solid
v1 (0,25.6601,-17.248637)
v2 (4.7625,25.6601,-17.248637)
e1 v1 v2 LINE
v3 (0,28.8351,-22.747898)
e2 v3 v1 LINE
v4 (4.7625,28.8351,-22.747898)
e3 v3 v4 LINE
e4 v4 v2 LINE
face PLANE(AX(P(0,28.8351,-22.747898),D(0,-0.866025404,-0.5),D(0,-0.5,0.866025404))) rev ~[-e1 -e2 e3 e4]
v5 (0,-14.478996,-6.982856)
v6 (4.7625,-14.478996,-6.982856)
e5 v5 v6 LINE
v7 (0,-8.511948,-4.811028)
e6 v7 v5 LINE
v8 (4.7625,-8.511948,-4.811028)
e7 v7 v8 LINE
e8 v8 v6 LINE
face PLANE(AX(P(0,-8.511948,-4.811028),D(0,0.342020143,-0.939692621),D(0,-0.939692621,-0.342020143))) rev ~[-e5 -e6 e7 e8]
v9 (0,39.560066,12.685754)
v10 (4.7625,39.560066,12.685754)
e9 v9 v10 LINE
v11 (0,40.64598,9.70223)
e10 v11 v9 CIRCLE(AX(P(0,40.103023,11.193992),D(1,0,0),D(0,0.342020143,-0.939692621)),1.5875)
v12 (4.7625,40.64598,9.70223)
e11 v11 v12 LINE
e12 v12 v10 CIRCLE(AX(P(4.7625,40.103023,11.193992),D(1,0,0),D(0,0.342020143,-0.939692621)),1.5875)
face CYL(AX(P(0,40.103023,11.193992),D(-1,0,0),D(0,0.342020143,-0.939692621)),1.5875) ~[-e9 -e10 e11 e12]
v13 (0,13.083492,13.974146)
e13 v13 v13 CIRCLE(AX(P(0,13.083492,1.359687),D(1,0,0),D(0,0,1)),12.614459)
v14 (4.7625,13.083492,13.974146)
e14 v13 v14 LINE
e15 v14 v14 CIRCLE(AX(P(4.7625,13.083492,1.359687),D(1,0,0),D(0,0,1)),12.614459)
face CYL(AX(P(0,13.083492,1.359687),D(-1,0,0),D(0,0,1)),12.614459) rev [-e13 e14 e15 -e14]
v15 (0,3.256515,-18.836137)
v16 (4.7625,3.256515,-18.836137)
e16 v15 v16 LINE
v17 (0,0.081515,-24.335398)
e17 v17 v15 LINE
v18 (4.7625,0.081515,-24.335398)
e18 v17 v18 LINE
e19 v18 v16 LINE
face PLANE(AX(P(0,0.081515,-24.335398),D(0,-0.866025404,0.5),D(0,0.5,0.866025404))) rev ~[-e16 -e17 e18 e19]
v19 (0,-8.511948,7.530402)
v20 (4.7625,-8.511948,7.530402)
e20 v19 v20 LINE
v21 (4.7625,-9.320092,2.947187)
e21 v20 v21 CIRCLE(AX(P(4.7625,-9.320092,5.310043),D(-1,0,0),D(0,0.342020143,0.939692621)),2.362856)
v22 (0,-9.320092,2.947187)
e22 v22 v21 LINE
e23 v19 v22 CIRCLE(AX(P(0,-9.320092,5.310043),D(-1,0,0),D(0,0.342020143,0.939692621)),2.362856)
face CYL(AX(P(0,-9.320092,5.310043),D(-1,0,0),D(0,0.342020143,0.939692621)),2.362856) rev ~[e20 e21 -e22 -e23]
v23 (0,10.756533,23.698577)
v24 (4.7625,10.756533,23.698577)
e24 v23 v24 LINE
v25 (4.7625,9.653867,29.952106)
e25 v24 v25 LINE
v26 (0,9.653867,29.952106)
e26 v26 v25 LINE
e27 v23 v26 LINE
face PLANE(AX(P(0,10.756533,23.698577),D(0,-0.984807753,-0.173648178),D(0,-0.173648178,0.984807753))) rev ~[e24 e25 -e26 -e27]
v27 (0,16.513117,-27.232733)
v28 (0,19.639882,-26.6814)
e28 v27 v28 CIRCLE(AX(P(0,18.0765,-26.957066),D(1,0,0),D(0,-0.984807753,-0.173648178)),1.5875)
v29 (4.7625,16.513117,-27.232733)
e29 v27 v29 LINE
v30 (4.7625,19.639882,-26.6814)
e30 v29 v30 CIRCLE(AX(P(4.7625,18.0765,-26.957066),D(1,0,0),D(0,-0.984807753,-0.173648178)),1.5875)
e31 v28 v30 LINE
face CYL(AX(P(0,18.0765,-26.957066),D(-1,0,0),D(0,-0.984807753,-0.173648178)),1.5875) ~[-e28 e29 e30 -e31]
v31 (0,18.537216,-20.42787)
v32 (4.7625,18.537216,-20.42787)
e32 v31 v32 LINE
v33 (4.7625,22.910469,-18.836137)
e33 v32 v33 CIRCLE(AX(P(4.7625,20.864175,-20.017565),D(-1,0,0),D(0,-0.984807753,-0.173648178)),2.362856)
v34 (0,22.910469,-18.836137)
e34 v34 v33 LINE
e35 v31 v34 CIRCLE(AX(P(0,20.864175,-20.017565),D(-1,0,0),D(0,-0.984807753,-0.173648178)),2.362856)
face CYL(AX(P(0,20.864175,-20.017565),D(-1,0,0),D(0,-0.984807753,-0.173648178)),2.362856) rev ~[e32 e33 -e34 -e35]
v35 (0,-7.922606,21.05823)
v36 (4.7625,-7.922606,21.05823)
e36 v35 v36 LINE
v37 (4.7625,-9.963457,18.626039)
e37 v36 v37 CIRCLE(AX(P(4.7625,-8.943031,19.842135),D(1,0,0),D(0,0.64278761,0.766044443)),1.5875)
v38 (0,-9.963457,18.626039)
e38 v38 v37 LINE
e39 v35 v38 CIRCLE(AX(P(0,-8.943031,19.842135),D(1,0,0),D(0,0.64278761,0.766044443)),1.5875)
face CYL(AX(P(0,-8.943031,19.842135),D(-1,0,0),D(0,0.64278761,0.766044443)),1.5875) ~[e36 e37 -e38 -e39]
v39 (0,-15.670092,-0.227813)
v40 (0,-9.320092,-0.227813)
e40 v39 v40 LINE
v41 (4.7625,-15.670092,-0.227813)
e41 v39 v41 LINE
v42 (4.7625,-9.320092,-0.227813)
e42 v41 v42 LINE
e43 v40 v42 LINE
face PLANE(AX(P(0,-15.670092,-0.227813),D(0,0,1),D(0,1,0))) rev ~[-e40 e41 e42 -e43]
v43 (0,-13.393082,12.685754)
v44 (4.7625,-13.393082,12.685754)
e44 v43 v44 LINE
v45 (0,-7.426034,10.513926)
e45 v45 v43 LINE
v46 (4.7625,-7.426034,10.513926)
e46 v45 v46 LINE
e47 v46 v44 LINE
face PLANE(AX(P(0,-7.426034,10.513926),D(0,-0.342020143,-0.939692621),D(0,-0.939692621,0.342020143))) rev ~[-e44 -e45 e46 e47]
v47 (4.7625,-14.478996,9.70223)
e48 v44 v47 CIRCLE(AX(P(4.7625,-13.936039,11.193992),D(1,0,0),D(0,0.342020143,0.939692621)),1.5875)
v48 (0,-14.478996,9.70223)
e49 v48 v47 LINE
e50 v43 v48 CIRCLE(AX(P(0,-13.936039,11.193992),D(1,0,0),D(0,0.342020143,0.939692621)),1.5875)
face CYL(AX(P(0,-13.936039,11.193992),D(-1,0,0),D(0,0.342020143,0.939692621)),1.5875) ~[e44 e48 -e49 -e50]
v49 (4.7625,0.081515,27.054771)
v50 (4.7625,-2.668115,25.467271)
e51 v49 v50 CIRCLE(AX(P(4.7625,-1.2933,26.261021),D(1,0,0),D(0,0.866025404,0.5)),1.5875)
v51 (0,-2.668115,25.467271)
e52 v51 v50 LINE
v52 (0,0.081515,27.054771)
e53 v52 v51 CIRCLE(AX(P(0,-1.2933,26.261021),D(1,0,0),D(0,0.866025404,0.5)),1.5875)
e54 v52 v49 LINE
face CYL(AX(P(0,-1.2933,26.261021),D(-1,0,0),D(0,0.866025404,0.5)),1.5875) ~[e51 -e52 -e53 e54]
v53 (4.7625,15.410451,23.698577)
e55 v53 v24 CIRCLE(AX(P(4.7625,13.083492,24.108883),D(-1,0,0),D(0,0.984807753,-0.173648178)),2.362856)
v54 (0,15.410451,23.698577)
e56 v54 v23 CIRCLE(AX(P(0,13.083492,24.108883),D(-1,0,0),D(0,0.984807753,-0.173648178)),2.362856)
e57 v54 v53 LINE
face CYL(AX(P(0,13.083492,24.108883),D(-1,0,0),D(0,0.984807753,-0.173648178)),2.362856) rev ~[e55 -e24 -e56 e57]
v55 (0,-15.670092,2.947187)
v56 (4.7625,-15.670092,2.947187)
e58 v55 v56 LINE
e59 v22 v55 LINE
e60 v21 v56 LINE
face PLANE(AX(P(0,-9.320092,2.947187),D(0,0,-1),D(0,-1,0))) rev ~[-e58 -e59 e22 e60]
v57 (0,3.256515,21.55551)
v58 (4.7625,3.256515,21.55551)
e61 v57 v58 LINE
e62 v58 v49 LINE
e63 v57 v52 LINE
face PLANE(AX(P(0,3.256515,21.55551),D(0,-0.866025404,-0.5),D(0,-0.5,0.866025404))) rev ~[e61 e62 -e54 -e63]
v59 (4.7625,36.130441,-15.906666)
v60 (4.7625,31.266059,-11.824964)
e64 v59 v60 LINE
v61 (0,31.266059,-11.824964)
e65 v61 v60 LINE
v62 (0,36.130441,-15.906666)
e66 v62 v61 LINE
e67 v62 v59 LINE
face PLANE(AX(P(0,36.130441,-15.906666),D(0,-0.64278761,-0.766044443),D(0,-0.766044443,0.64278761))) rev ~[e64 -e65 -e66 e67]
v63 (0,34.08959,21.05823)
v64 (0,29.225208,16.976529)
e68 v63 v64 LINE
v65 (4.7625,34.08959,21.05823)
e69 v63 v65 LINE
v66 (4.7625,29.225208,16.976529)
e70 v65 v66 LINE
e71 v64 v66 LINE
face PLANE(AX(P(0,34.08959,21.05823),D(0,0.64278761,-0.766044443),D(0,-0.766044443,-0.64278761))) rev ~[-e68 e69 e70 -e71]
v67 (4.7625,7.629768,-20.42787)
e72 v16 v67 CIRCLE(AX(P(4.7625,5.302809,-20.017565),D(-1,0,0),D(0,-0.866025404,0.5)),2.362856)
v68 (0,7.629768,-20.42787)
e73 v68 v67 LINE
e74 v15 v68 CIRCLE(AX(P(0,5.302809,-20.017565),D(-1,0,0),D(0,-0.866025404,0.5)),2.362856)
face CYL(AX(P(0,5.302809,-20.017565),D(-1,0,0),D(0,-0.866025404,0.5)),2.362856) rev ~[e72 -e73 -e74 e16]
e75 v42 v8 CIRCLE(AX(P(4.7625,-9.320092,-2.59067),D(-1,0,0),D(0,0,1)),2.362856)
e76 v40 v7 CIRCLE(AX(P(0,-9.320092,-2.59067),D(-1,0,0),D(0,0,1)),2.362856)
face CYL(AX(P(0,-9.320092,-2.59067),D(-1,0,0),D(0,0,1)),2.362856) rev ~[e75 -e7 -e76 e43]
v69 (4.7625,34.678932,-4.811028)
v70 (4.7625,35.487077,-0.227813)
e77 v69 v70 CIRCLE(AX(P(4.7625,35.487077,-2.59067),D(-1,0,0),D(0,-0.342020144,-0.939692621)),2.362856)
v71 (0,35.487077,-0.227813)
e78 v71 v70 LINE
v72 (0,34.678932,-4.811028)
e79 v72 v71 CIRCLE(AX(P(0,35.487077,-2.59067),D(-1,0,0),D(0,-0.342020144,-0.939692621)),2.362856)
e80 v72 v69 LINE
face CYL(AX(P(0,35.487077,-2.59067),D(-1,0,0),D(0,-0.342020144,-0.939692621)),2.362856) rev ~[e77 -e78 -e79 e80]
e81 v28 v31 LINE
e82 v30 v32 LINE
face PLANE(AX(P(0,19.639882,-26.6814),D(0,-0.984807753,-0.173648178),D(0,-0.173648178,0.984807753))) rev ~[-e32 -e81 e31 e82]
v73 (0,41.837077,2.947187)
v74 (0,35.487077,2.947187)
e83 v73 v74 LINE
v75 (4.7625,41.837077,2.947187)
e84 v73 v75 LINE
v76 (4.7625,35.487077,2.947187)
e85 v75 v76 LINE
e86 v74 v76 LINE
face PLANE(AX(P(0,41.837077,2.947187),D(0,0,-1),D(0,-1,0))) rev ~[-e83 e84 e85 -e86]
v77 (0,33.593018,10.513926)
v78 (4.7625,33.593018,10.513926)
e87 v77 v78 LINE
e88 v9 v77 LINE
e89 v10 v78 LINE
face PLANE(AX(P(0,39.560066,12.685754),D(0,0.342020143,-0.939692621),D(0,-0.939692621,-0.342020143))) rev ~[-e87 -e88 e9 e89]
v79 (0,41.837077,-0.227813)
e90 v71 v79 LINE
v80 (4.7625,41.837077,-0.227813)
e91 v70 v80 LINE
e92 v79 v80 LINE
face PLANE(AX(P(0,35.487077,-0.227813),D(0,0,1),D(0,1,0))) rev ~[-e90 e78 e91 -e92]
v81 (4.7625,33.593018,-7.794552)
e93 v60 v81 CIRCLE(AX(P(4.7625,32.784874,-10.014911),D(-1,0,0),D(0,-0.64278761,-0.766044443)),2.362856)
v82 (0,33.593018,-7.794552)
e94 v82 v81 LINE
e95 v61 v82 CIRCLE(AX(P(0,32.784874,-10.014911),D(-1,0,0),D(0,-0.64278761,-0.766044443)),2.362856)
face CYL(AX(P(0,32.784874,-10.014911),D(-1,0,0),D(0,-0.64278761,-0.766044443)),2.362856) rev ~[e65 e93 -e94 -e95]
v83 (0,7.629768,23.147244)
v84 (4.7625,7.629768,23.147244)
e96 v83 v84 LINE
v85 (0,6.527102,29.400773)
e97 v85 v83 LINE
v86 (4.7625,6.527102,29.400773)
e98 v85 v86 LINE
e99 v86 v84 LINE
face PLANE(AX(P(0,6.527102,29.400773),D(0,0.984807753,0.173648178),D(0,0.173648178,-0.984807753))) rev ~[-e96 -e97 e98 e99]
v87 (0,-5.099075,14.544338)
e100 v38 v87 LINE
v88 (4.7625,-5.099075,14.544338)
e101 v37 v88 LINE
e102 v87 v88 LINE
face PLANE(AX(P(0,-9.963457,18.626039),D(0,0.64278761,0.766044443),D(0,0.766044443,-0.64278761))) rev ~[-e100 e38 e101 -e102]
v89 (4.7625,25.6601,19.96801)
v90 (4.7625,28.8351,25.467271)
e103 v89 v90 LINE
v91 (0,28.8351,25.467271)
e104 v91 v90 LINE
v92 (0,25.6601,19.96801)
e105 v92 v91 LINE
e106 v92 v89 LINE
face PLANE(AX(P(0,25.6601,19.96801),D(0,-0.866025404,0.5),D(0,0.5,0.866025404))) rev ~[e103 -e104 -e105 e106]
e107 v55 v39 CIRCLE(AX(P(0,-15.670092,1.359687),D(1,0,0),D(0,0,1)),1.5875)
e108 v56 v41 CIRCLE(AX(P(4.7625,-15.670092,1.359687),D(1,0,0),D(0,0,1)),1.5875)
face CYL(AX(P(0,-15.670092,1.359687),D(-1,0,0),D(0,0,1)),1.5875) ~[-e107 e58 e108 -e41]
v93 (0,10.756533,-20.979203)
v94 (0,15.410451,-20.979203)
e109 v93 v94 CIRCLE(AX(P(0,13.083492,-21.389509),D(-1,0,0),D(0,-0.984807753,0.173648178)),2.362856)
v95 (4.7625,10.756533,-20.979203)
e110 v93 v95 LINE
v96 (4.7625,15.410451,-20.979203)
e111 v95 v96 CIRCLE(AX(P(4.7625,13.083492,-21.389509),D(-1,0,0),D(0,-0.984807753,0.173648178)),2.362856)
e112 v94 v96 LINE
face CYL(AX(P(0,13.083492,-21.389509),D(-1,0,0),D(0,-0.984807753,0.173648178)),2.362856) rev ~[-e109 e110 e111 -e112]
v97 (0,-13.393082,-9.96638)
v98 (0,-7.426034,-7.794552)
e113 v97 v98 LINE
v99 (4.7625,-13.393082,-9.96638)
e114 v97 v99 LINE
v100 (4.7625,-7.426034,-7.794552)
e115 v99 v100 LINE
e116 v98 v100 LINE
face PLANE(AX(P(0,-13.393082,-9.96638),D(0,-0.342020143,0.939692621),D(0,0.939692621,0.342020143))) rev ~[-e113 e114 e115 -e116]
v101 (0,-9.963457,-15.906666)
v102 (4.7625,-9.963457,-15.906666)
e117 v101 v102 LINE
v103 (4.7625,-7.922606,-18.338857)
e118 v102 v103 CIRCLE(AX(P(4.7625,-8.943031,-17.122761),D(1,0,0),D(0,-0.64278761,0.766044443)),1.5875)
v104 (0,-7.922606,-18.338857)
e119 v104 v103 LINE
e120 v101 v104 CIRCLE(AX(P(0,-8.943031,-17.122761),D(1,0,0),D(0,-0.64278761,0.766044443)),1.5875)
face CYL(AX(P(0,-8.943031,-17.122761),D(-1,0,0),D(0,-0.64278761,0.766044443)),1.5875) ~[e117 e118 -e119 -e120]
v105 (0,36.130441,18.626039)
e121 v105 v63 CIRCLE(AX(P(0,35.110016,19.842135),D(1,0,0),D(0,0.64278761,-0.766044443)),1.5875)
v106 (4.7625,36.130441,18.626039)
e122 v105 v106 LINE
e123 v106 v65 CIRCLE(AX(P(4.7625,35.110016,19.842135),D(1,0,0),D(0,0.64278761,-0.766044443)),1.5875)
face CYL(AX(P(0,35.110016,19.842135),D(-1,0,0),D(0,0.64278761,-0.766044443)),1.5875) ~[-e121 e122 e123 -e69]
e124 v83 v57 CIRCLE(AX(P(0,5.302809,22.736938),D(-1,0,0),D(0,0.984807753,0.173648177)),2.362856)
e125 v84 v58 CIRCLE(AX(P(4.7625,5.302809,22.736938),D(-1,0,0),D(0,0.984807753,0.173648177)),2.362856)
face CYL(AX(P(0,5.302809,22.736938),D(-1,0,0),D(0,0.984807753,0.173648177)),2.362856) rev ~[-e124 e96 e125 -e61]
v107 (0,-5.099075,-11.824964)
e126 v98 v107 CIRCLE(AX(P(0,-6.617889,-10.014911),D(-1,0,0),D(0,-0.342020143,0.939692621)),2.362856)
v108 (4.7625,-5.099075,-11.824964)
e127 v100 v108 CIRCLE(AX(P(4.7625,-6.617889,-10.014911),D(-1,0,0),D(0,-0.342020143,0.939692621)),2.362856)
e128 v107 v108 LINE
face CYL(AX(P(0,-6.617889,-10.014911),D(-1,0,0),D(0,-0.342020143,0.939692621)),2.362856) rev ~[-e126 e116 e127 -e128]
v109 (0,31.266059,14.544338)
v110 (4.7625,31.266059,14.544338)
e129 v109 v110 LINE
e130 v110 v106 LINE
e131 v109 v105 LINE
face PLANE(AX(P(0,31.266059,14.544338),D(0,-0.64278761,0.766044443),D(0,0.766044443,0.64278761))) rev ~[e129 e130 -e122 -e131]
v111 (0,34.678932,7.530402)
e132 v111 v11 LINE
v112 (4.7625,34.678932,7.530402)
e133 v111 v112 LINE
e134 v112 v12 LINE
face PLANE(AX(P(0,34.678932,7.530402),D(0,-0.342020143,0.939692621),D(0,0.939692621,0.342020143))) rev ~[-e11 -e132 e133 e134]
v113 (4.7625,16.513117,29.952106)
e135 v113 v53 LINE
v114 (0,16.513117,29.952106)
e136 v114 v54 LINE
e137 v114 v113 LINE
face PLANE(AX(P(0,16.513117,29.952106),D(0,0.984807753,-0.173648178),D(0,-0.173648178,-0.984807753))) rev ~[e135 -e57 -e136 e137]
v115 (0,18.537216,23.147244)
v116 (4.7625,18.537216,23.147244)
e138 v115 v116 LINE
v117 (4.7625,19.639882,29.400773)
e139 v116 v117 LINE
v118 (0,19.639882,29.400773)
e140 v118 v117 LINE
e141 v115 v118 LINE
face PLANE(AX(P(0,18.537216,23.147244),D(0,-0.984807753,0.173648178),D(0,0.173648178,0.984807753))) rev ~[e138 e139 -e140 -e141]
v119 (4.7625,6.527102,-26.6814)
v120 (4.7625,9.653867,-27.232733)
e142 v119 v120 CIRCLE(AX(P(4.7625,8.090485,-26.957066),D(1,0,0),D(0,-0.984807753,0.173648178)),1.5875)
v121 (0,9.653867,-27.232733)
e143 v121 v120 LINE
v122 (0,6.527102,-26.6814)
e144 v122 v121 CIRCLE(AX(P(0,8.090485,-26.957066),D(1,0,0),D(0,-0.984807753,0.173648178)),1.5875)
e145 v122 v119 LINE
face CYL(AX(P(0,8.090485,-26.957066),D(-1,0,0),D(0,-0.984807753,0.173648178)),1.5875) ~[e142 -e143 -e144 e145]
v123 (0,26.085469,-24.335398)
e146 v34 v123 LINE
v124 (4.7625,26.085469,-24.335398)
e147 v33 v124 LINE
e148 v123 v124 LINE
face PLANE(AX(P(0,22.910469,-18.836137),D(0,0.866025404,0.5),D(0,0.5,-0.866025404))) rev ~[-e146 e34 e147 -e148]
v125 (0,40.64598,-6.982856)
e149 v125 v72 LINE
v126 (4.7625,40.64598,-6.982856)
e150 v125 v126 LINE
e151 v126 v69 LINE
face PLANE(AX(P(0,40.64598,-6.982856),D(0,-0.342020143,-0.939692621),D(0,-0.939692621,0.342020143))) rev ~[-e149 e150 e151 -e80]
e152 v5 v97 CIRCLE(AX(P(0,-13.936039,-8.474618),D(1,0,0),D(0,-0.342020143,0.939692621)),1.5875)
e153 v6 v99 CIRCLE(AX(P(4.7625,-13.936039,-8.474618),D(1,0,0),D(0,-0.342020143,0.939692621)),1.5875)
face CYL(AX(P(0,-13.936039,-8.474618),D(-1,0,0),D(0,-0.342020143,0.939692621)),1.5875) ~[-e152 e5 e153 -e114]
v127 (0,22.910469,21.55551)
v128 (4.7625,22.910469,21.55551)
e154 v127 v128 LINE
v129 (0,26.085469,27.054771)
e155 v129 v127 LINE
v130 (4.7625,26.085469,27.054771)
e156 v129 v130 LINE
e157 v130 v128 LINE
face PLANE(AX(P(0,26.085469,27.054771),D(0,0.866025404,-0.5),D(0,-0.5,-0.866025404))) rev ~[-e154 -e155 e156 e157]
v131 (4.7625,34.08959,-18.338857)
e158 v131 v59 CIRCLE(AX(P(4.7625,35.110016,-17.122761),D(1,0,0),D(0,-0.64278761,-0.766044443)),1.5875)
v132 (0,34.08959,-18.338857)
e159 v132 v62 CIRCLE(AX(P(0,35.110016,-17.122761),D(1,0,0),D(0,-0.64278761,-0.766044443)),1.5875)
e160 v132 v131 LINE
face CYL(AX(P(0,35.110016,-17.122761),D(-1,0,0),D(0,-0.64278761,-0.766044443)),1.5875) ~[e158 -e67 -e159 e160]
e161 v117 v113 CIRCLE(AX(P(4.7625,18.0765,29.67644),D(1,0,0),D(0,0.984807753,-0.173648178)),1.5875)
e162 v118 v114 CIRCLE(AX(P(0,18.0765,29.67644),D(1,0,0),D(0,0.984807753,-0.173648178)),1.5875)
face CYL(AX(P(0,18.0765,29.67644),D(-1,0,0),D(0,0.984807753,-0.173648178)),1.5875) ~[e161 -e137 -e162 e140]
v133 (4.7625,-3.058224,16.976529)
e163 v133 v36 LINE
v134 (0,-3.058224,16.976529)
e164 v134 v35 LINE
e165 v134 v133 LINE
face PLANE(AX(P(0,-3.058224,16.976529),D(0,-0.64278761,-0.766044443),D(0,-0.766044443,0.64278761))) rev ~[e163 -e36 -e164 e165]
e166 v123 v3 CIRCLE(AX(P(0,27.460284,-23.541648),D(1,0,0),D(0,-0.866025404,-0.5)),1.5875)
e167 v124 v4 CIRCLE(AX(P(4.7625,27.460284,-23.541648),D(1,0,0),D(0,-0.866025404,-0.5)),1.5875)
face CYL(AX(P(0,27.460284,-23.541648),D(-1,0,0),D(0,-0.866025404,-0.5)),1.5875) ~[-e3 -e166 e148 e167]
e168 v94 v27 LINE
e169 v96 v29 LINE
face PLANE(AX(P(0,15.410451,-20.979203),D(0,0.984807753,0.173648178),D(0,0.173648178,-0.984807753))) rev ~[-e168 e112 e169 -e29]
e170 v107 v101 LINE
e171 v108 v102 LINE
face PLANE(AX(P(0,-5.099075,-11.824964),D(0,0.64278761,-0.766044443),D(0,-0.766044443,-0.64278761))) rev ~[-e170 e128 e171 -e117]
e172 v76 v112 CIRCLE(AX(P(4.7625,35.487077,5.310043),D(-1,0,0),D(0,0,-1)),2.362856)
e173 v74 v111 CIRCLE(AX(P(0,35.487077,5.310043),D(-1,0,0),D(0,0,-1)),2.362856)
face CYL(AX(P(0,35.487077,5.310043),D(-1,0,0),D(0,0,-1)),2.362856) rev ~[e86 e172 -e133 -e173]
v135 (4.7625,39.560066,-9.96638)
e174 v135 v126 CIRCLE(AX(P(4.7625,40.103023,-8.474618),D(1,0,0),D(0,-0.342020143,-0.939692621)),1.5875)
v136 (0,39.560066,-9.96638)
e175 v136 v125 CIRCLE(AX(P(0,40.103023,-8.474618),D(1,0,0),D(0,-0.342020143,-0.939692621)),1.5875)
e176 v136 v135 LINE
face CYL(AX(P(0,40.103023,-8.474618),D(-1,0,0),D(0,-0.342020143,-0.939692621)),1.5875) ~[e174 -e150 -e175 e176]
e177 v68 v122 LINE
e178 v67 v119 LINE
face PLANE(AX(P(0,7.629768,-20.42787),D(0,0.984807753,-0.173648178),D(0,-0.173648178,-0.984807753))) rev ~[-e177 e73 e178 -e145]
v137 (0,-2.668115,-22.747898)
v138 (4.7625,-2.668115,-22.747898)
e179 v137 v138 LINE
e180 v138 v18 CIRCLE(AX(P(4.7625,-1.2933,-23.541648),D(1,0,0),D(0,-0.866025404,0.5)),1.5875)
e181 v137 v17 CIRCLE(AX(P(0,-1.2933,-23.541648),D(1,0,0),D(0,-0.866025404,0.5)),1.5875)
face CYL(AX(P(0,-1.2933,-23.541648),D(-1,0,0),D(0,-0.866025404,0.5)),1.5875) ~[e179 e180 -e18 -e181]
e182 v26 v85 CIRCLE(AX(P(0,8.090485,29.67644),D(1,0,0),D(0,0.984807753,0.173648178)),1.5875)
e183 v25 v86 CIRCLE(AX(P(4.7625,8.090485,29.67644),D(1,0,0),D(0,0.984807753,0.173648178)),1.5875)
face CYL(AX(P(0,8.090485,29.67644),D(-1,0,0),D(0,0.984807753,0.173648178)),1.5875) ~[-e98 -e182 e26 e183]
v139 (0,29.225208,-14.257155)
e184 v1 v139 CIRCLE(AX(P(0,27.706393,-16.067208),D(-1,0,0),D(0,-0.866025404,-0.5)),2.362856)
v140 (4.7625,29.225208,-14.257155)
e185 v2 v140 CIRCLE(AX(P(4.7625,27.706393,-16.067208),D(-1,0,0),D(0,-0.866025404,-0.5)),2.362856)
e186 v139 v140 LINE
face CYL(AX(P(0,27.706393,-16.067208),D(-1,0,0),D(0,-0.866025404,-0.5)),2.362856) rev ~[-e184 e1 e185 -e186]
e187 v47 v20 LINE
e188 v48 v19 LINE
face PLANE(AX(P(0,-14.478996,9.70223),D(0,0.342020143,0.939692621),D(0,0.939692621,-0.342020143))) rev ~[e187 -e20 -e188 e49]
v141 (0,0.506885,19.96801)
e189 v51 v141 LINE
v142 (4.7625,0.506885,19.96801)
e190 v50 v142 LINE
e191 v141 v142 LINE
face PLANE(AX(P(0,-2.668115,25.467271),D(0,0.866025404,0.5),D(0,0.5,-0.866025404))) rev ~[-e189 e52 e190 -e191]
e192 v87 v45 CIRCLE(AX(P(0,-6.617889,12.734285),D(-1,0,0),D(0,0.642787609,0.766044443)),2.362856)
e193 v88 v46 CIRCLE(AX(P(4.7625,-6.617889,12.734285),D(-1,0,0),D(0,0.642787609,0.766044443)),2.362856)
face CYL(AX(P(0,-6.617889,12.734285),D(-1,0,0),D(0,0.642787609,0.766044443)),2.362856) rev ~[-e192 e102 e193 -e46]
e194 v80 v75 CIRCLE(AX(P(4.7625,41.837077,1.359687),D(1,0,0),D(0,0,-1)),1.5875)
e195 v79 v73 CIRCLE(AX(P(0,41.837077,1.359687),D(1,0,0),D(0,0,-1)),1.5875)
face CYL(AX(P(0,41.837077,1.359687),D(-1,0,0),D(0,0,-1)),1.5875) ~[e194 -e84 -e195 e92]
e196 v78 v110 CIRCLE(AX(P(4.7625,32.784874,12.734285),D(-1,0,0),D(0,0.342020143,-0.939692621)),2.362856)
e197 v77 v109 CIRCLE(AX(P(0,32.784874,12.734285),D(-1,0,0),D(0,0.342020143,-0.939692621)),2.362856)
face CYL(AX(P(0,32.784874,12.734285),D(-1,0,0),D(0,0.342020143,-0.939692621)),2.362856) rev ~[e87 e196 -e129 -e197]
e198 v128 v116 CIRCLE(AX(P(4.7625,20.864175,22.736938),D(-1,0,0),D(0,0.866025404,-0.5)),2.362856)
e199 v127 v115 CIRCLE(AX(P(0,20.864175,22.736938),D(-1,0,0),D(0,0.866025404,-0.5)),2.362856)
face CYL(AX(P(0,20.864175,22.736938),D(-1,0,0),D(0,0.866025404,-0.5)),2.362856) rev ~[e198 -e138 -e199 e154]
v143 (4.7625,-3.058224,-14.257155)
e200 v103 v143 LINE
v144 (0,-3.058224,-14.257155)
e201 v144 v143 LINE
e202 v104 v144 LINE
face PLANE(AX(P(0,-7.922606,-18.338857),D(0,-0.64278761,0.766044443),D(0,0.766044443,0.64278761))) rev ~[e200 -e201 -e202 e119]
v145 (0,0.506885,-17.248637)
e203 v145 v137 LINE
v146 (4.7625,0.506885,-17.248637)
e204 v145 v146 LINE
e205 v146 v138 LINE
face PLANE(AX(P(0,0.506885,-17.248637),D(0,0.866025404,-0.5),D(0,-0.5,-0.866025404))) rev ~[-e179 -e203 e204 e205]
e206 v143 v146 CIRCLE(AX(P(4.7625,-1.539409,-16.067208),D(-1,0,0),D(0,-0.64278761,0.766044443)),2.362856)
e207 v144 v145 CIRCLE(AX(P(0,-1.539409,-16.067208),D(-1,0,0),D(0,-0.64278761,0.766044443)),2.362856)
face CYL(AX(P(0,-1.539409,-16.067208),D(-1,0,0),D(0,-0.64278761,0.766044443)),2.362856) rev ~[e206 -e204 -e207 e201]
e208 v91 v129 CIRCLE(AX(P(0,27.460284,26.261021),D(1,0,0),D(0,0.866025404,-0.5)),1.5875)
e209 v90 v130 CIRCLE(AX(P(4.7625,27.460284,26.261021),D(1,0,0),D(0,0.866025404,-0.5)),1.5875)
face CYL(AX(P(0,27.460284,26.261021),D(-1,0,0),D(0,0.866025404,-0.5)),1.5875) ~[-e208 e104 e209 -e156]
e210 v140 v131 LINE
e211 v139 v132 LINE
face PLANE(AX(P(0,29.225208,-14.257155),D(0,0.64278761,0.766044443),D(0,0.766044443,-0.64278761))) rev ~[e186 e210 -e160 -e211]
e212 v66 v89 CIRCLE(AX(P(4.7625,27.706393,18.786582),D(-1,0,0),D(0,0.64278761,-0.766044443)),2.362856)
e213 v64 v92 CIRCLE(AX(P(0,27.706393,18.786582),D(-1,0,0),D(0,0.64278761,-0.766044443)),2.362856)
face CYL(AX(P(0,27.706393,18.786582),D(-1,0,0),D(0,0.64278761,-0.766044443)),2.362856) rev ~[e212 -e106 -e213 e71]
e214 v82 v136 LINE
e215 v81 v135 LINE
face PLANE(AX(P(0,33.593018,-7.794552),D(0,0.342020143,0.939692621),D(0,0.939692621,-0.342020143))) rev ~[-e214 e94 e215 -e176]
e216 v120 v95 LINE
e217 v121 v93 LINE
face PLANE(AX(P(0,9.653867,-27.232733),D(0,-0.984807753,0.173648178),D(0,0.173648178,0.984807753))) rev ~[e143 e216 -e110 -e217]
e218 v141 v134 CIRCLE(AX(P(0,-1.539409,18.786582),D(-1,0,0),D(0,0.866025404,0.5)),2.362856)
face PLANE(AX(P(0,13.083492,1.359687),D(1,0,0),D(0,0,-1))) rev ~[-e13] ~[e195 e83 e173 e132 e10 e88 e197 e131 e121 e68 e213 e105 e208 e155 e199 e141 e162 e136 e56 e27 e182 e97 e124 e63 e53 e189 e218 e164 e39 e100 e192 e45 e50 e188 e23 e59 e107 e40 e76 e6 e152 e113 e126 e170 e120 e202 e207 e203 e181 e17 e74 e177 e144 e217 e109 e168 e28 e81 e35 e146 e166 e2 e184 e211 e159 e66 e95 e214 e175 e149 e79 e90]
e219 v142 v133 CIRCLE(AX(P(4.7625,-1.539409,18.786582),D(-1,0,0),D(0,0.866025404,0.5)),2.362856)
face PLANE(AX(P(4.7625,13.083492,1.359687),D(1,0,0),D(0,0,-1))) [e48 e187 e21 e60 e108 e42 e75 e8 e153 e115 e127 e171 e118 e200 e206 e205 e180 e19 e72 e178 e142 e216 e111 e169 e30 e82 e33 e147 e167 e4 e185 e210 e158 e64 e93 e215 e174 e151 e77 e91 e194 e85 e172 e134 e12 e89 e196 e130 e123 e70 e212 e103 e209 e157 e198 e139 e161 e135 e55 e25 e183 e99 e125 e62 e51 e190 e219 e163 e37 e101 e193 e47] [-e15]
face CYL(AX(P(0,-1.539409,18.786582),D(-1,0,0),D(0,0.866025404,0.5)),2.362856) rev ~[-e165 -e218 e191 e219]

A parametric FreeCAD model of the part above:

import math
import FreeCAD as App
import Part
import Sketcher
Q = App.Units.Quantity

doc = App.newDocument("Part")
body = doc.addObject("PartDesign::Body", "Body")

# Sketch on YZ plane
sketch1 = doc.addObject("Sketcher::SketchObject", "Sketch")
body.addObject(sketch1)
sketch1.AttachmentSupport = (doc.YZ_Plane, [""])
sketch1.MapMode = "FlatFace"
sketch1.addGeometry(Part.LineSegment(App.Vector(40.6, -7, 0), App.Vector(34.7, -4.8, 0)), False)
sketch1.addGeometry(Part.ArcOfCircle(Part.Circle(App.Vector(35.5, -2.6, 0), App.Vector(0, 0, 1), 2.4), math.radians(90), math.radians(250)), False)
sketch1.addGeometry(Part.LineSegment(App.Vector(35.5, -0.2, 0), App.Vector(41.8, -0.2, 0)), False)
sketch1.addGeometry(Part.ArcOfCircle(Part.Circle(App.Vector(41.8, 1.4, 0), App.Vector(0, 0, 1), 1.6), math.radians(-90), math.radians(90)), False)
sketch1.addGeometry(Part.LineSegment(App.Vector(41.8, 2.9, 0), App.Vector(35.5, 2.9, 0)), False)
sketch1.addGeometry(Part.ArcOfCircle(Part.Circle(App.Vector(35.5, 5.3, 0), App.Vector(0, 0, 1), 2.4), math.radians(110), math.radians(270)), False)
sketch1.addGeometry(Part.LineSegment(App.Vector(34.7, 7.5, 0), App.Vector(40.6, 9.7, 0)), False)
sketch1.addGeometry(Part.ArcOfCircle(Part.Circle(App.Vector(40.1, 11.2, 0), App.Vector(0, 0, 1), 1.6), math.radians(-70), math.radians(110)), False)
sketch1.addGeometry(Part.LineSegment(App.Vector(39.6, 12.7, 0), App.Vector(33.6, 10.5, 0)), False)
sketch1.addGeometry(Part.ArcOfCircle(Part.Circle(App.Vector(32.8, 12.7, 0), App.Vector(0, 0, 1), 2.4), math.radians(130), math.radians(290)), False)
sketch1.addGeometry(Part.LineSegment(App.Vector(31.3, 14.5, 0), App.Vector(36.1, 18.6, 0)), False)
sketch1.addGeometry(Part.ArcOfCircle(Part.Circle(App.Vector(35.1, 19.8, 0), App.Vector(0, 0, 1), 1.6), math.radians(-50), math.radians(130)), False)
sketch1.addGeometry(Part.LineSegment(App.Vector(34.1, 21.1, 0), App.Vector(29.2, 17, 0)), False)
sketch1.addGeometry(Part.ArcOfCircle(Part.Circle(App.Vector(27.7, 18.8, 0), App.Vector(0, 0, 1), 2.4), math.radians(150), math.radians(310)), False)
sketch1.addGeometry(Part.LineSegment(App.Vector(25.7, 20, 0), App.Vector(28.8, 25.5, 0)), False)
sketch1.addGeometry(Part.ArcOfCircle(Part.Circle(App.Vector(27.5, 26.3, 0), App.Vector(0, 0, 1), 1.6), math.radians(-30), math.radians(150)), False)
sketch1.addGeometry(Part.LineSegment(App.Vector(26.1, 27.1, 0), App.Vector(22.9, 21.6, 0)), False)
sketch1.addGeometry(Part.ArcOfCircle(Part.Circle(App.Vector(20.9, 22.7, 0), App.Vector(0, 0, 1), 2.4), math.radians(170), math.radians(330)), False)
sketch1.addGeometry(Part.LineSegment(App.Vector(18.5, 23.1, 0), App.Vector(19.6, 29.4, 0)), False)
sketch1.addGeometry(Part.ArcOfCircle(Part.Circle(App.Vector(18.1, 29.7, 0), App.Vector(0, 0, 1), 1.6), math.radians(-10), math.radians(170)), False)
sketch1.addGeometry(Part.LineSegment(App.Vector(16.5, 30, 0), App.Vector(15.4, 23.7, 0)), False)
sketch1.addGeometry(Part.ArcOfCircle(Part.Circle(App.Vector(13.1, 24.1, 0), App.Vector(0, 0, 1), 2.4), math.radians(-170), math.radians(-10)), False)
sketch1.addGeometry(Part.LineSegment(App.Vector(10.8, 23.7, 0), App.Vector(9.7, 30, 0)), False)
sketch1.addGeometry(Part.ArcOfCircle(Part.Circle(App.Vector(8.1, 29.7, 0), App.Vector(0, 0, 1), 1.6), math.radians(10), math.radians(190)), False)
sketch1.addGeometry(Part.LineSegment(App.Vector(6.5, 29.4, 0), App.Vector(7.6, 23.1, 0)), False)
sketch1.addGeometry(Part.ArcOfCircle(Part.Circle(App.Vector(5.3, 22.7, 0), App.Vector(0, 0, 1), 2.4), math.radians(-150), math.radians(10)), False)
sketch1.addGeometry(Part.LineSegment(App.Vector(3.3, 21.6, 0), App.Vector(0.1, 27.1, 0)), False)
sketch1.addGeometry(Part.ArcOfCircle(Part.Circle(App.Vector(-1.3, 26.3, 0), App.Vector(0, 0, 1), 1.6), math.radians(30), math.radians(210)), False)
sketch1.addGeometry(Part.LineSegment(App.Vector(-2.7, 25.5, 0), App.Vector(0.5, 20, 0)), False)
sketch1.addGeometry(Part.ArcOfCircle(Part.Circle(App.Vector(-1.5, 18.8, 0), App.Vector(0, 0, 1), 2.4), math.radians(-130), math.radians(30)), False)
sketch1.addGeometry(Part.LineSegment(App.Vector(-3.1, 17, 0), App.Vector(-7.9, 21.1, 0)), False)
sketch1.addGeometry(Part.ArcOfCircle(Part.Circle(App.Vector(-8.9, 19.8, 0), App.Vector(0, 0, 1), 1.6), math.radians(50), math.radians(230)), False)
sketch1.addGeometry(Part.LineSegment(App.Vector(-10, 18.6, 0), App.Vector(-5.1, 14.5, 0)), False)
sketch1.addGeometry(Part.ArcOfCircle(Part.Circle(App.Vector(-6.6, 12.7, 0), App.Vector(0, 0, 1), 2.4), math.radians(-110), math.radians(50)), False)
sketch1.addGeometry(Part.LineSegment(App.Vector(-7.4, 10.5, 0), App.Vector(-13.4, 12.7, 0)), False)
sketch1.addGeometry(Part.ArcOfCircle(Part.Circle(App.Vector(-13.9, 11.2, 0), App.Vector(0, 0, 1), 1.6), math.radians(70), math.radians(250)), False)
sketch1.addGeometry(Part.LineSegment(App.Vector(-14.5, 9.7, 0), App.Vector(-8.5, 7.5, 0)), False)
sketch1.addGeometry(Part.ArcOfCircle(Part.Circle(App.Vector(-9.3, 5.3, 0), App.Vector(0, 0, 1), 2.4), math.radians(-90), math.radians(70)), False)
sketch1.addGeometry(Part.LineSegment(App.Vector(-9.3, 2.9, 0), App.Vector(-15.7, 2.9, 0)), False)
sketch1.addGeometry(Part.ArcOfCircle(Part.Circle(App.Vector(-15.7, 1.4, 0), App.Vector(0, 0, 1), 1.6), math.radians(90), math.radians(270)), False)
sketch1.addGeometry(Part.LineSegment(App.Vector(-15.7, -0.2, 0), App.Vector(-9.3, -0.2, 0)), False)
sketch1.addGeometry(Part.ArcOfCircle(Part.Circle(App.Vector(-9.3, -2.6, 0), App.Vector(0, 0, 1), 2.4), math.radians(-70), math.radians(90)), False)
sketch1.addGeometry(Part.LineSegment(App.Vector(-8.5, -4.8, 0), App.Vector(-14.5, -7, 0)), False)
sketch1.addGeometry(Part.ArcOfCircle(Part.Circle(App.Vector(-13.9, -8.5, 0), App.Vector(0, 0, 1), 1.6), math.radians(110), math.radians(290)), False)
sketch1.addGeometry(Part.LineSegment(App.Vector(-13.4, -10, 0), App.Vector(-7.4, -7.8, 0)), False)
sketch1.addGeometry(Part.ArcOfCircle(Part.Circle(App.Vector(-6.6, -10, 0), App.Vector(0, 0, 1), 2.4), math.radians(-50), math.radians(110)), False)
sketch1.addGeometry(Part.LineSegment(App.Vector(-5.1, -11.8, 0), App.Vector(-10, -15.9, 0)), False)
sketch1.addGeometry(Part.ArcOfCircle(Part.Circle(App.Vector(-8.9, -17.1, 0), App.Vector(0, 0, 1), 1.6), math.radians(130), math.radians(310)), False)
sketch1.addGeometry(Part.LineSegment(App.Vector(-7.9, -18.3, 0), App.Vector(-3.1, -14.3, 0)), False)
sketch1.addGeometry(Part.ArcOfCircle(Part.Circle(App.Vector(-1.5, -16.1, 0), App.Vector(0, 0, 1), 2.4), math.radians(-30), math.radians(130)), False)
sketch1.addGeometry(Part.LineSegment(App.Vector(0.5, -17.2, 0), App.Vector(-2.7, -22.7, 0)), False)
sketch1.addGeometry(Part.ArcOfCircle(Part.Circle(App.Vector(-1.3, -23.5, 0), App.Vector(0, 0, 1), 1.6), math.radians(150), math.radians(330)), False)
sketch1.addGeometry(Part.LineSegment(App.Vector(0.1, -24.3, 0), App.Vector(3.3, -18.8, 0)), False)
sketch1.addGeometry(Part.ArcOfCircle(Part.Circle(App.Vector(5.3, -20, 0), App.Vector(0, 0, 1), 2.4), math.radians(-10), math.radians(150)), False)
sketch1.addGeometry(Part.LineSegment(App.Vector(7.6, -20.4, 0), App.Vector(6.5, -26.7, 0)), False)
sketch1.addGeometry(Part.ArcOfCircle(Part.Circle(App.Vector(8.1, -27, 0), App.Vector(0, 0, 1), 1.6), math.radians(170), math.radians(350)), False)
sketch1.addGeometry(Part.LineSegment(App.Vector(9.7, -27.2, 0), App.Vector(10.8, -21, 0)), False)
sketch1.addGeometry(Part.ArcOfCircle(Part.Circle(App.Vector(13.1, -21.4, 0), App.Vector(0, 0, 1), 2.4), math.radians(10), math.radians(170)), False)
sketch1.addGeometry(Part.LineSegment(App.Vector(15.4, -21, 0), App.Vector(16.5, -27.2, 0)), False)
sketch1.addGeometry(Part.ArcOfCircle(Part.Circle(App.Vector(18.1, -27, 0), App.Vector(0, 0, 1), 1.6), math.radians(-170), math.radians(10)), False)
sketch1.addGeometry(Part.LineSegment(App.Vector(19.6, -26.7, 0), App.Vector(18.5, -20.4, 0)), False)
sketch1.addGeometry(Part.ArcOfCircle(Part.Circle(App.Vector(20.9, -20, 0), App.Vector(0, 0, 1), 2.4), math.radians(30), math.radians(190)), False)
sketch1.addGeometry(Part.LineSegment(App.Vector(22.9, -18.8, 0), App.Vector(26.1, -24.3, 0)), False)
sketch1.addGeometry(Part.ArcOfCircle(Part.Circle(App.Vector(27.5, -23.5, 0), App.Vector(0, 0, 1), 1.6), math.radians(-150), math.radians(30)), False)
sketch1.addGeometry(Part.LineSegment(App.Vector(28.8, -22.7, 0), App.Vector(25.7, -17.2, 0)), False)
sketch1.addGeometry(Part.ArcOfCircle(Part.Circle(App.Vector(27.7, -16.1, 0), App.Vector(0, 0, 1), 2.4), math.radians(50), math.radians(210)), False)
sketch1.addGeometry(Part.LineSegment(App.Vector(29.2, -14.3, 0), App.Vector(34.1, -18.3, 0)), False)
sketch1.addGeometry(Part.ArcOfCircle(Part.Circle(App.Vector(35.1, -17.1, 0), App.Vector(0, 0, 1), 1.6), math.radians(-130), math.radians(50)), False)
sketch1.addGeometry(Part.LineSegment(App.Vector(36.1, -15.9, 0), App.Vector(31.3, -11.8, 0)), False)
sketch1.addGeometry(Part.ArcOfCircle(Part.Circle(App.Vector(32.8, -10, 0), App.Vector(0, 0, 1), 2.4), math.radians(70), math.radians(230)), False)
sketch1.addGeometry(Part.LineSegment(App.Vector(33.6, -7.8, 0), App.Vector(39.6, -10, 0)), False)
sketch1.addGeometry(Part.ArcOfCircle(Part.Circle(App.Vector(40.1, -8.5, 0), App.Vector(0, 0, 1), 1.6), math.radians(-110), math.radians(70)), False)
sketch1.addGeometry(Part.Circle(App.Vector(13.1, 1.4, 0), App.Vector(0, 0, 1), 12.6), False)
sketch1.addConstraint(Sketcher.Constraint("Tangent", 0, 2, 1, 2))
sketch1.addConstraint(Sketcher.Constraint("Tangent", 1, 1, 2, 1))
sketch1.addConstraint(Sketcher.Constraint("Tangent", 2, 2, 3, 1))
sketch1.addConstraint(Sketcher.Constraint("Tangent", 3, 2, 4, 1))
sketch1.addConstraint(Sketcher.Constraint("Tangent", 4, 2, 5, 2))
sketch1.addConstraint(Sketcher.Constraint("Tangent", 5, 1, 6, 1))
sketch1.addConstraint(Sketcher.Constraint("Tangent", 6, 2, 7, 1))
sketch1.addConstraint(Sketcher.Constraint("Tangent", 7, 2, 8, 1))
sketch1.addConstraint(Sketcher.Constraint("Tangent", 8, 2, 9, 2))
sketch1.addConstraint(Sketcher.Constraint("Tangent", 9, 1, 10, 1))
sketch1.addConstraint(Sketcher.Constraint("Tangent", 10, 2, 11, 1))
sketch1.addConstraint(Sketcher.Constraint("Tangent", 11, 2, 12, 1))
sketch1.addConstraint(Sketcher.Constraint("Tangent", 12, 2, 13, 2))
sketch1.addConstraint(Sketcher.Constraint("Tangent", 13, 1, 14, 1))
sketch1.addConstraint(Sketcher.Constraint("Tangent", 14, 2, 15, 1))
sketch1.addConstraint(Sketcher.Constraint("Tangent", 15, 2, 16, 1))
sketch1.addConstraint(Sketcher.Constraint("Tangent", 16, 2, 17, 2))
sketch1.addConstraint(Sketcher.Constraint("Tangent", 17, 1, 18, 1))
sketch1.addConstraint(Sketcher.Constraint("Tangent", 18, 2, 19, 1))
sketch1.addConstraint(Sketcher.Constraint("Tangent", 19, 2, 20, 1))
sketch1.addConstraint(Sketcher.Constraint("Tangent", 20, 2, 21, 2))
sketch1.addConstraint(Sketcher.Constraint("Tangent", 21, 1, 22, 1))
sketch1.addConstraint(Sketcher.Constraint("Tangent", 22, 2, 23, 1))
sketch1.addConstraint(Sketcher.Constraint("Tangent", 23, 2, 24, 1))
sketch1.addConstraint(Sketcher.Constraint("Tangent", 24, 2, 25, 2))
sketch1.addConstraint(Sketcher.Constraint("Tangent", 25, 1, 26, 1))
sketch1.addConstraint(Sketcher.Constraint("Tangent", 26, 2, 27, 1))
sketch1.addConstraint(Sketcher.Constraint("Tangent", 27, 2, 28, 1))
sketch1.addConstraint(Sketcher.Constraint("Tangent", 28, 2, 29, 2))
sketch1.addConstraint(Sketcher.Constraint("Tangent", 29, 1, 30, 1))
sketch1.addConstraint(Sketcher.Constraint("Tangent", 30, 2, 31, 1))
sketch1.addConstraint(Sketcher.Constraint("Tangent", 31, 2, 32, 1))
sketch1.addConstraint(Sketcher.Constraint("Tangent", 32, 2, 33, 2))
sketch1.addConstraint(Sketcher.Constraint("Tangent", 33, 1, 34, 1))
sketch1.addConstraint(Sketcher.Constraint("Tangent", 34, 2, 35, 1))
sketch1.addConstraint(Sketcher.Constraint("Tangent", 35, 2, 36, 1))
sketch1.addConstraint(Sketcher.Constraint("Tangent", 36, 2, 37, 2))
sketch1.addConstraint(Sketcher.Constraint("Tangent", 37, 1, 38, 1))
sketch1.addConstraint(Sketcher.Constraint("Tangent", 38, 2, 39, 1))
sketch1.addConstraint(Sketcher.Constraint("Tangent", 39, 2, 40, 1))
sketch1.addConstraint(Sketcher.Constraint("Tangent", 40, 2, 41, 2))
sketch1.addConstraint(Sketcher.Constraint("Tangent", 41, 1, 42, 1))
sketch1.addConstraint(Sketcher.Constraint("Tangent", 42, 2, 43, 1))
sketch1.addConstraint(Sketcher.Constraint("Tangent", 43, 2, 44, 1))
sketch1.addConstraint(Sketcher.Constraint("Tangent", 44, 2, 45, 2))
sketch1.addConstraint(Sketcher.Constraint("Tangent", 45, 1, 46, 1))
sketch1.addConstraint(Sketcher.Constraint("Tangent", 46, 2, 47, 1))
sketch1.addConstraint(Sketcher.Constraint("Tangent", 47, 2, 48, 1))
sketch1.addConstraint(Sketcher.Constraint("Tangent", 48, 2, 49, 2))
sketch1.addConstraint(Sketcher.Constraint("Tangent", 49, 1, 50, 1))
sketch1.addConstraint(Sketcher.Constraint("Tangent", 50, 2, 51, 1))
sketch1.addConstraint(Sketcher.Constraint("Tangent", 51, 2, 52, 1))
sketch1.addConstraint(Sketcher.Constraint("Tangent", 52, 2, 53, 2))
sketch1.addConstraint(Sketcher.Constraint("Tangent", 53, 1, 54, 1))
sketch1.addConstraint(Sketcher.Constraint("Tangent", 54, 2, 55, 1))
sketch1.addConstraint(Sketcher.Constraint("Tangent", 55, 2, 56, 1))
sketch1.addConstraint(Sketcher.Constraint("Tangent", 56, 2, 57, 2))
sketch1.addConstraint(Sketcher.Constraint("Tangent", 57, 1, 58, 1))
sketch1.addConstraint(Sketcher.Constraint("Tangent", 58, 2, 59, 1))
sketch1.addConstraint(Sketcher.Constraint("Tangent", 59, 2, 60, 1))
sketch1.addConstraint(Sketcher.Constraint("Tangent", 60, 2, 61, 2))
sketch1.addConstraint(Sketcher.Constraint("Tangent", 61, 1, 62, 1))
sketch1.addConstraint(Sketcher.Constraint("Tangent", 62, 2, 63, 1))
sketch1.addConstraint(Sketcher.Constraint("Tangent", 63, 2, 64, 1))
sketch1.addConstraint(Sketcher.Constraint("Tangent", 64, 2, 65, 2))
sketch1.addConstraint(Sketcher.Constraint("Tangent", 65, 1, 66, 1))
sketch1.addConstraint(Sketcher.Constraint("Tangent", 66, 2, 67, 1))
sketch1.addConstraint(Sketcher.Constraint("Tangent", 67, 2, 68, 1))
sketch1.addConstraint(Sketcher.Constraint("Tangent", 68, 2, 69, 2))
sketch1.addConstraint(Sketcher.Constraint("Tangent", 69, 1, 70, 1))
sketch1.addConstraint(Sketcher.Constraint("Tangent", 70, 2, 71, 1))
sketch1.addConstraint(Sketcher.Constraint("Tangent", 71, 2, 0, 1))
sketch1.addConstraint(Sketcher.Constraint("Horizontal", 2))
sketch1.addConstraint(Sketcher.Constraint("Horizontal", 4))
sketch1.addConstraint(Sketcher.Constraint("Horizontal", 38))
sketch1.addConstraint(Sketcher.Constraint("Horizontal", 40))
sketch1.addConstraint(Sketcher.Constraint("Equal", 1, 5))
sketch1.addConstraint(Sketcher.Constraint("Equal", 3, 7))
sketch1.addConstraint(Sketcher.Constraint("Equal", 5, 9))
sketch1.addConstraint(Sketcher.Constraint("Equal", 7, 11))
sketch1.addConstraint(Sketcher.Constraint("Equal", 9, 13))
sketch1.addConstraint(Sketcher.Constraint("Equal", 11, 15))
sketch1.addConstraint(Sketcher.Constraint("Equal", 13, 17))
sketch1.addConstraint(Sketcher.Constraint("Equal", 15, 19))
sketch1.addConstraint(Sketcher.Constraint("Equal", 17, 21))
sketch1.addConstraint(Sketcher.Constraint("Equal", 19, 23))
sketch1.addConstraint(Sketcher.Constraint("Equal", 21, 25))
sketch1.addConstraint(Sketcher.Constraint("Equal", 23, 27))
sketch1.addConstraint(Sketcher.Constraint("Equal", 25, 29))
sketch1.addConstraint(Sketcher.Constraint("Equal", 27, 31))
sketch1.addConstraint(Sketcher.Constraint("Equal", 29, 33))
sketch1.addConstraint(Sketcher.Constraint("Equal", 31, 35))
sketch1.addConstraint(Sketcher.Constraint("Equal", 33, 37))
sketch1.addConstraint(Sketcher.Constraint("Equal", 35, 39))
sketch1.addConstraint(Sketcher.Constraint("Equal", 37, 41))
sketch1.addConstraint(Sketcher.Constraint("Equal", 39, 43))
sketch1.addConstraint(Sketcher.Constraint("Equal", 41, 45))
sketch1.addConstraint(Sketcher.Constraint("Equal", 43, 47))
sketch1.addConstraint(Sketcher.Constraint("Equal", 45, 49))
sketch1.addConstraint(Sketcher.Constraint("Equal", 47, 51))
sketch1.addConstraint(Sketcher.Constraint("Equal", 49, 53))
sketch1.addConstraint(Sketcher.Constraint("Equal", 51, 55))
sketch1.addConstraint(Sketcher.Constraint("Equal", 53, 57))
sketch1.addConstraint(Sketcher.Constraint("Equal", 55, 59))
sketch1.addConstraint(Sketcher.Constraint("Equal", 57, 61))
sketch1.addConstraint(Sketcher.Constraint("Equal", 59, 63))
sketch1.addConstraint(Sketcher.Constraint("Equal", 61, 65))
sketch1.addConstraint(Sketcher.Constraint("Equal", 63, 67))
sketch1.addConstraint(Sketcher.Constraint("Equal", 65, 69))
sketch1.addConstraint(Sketcher.Constraint("Equal", 67, 71))
sketch1.addConstraint(Sketcher.Constraint("Parallel", 6, 8))
sketch1.addConstraint(Sketcher.Constraint("Parallel", 10, 12))
sketch1.addConstraint(Sketcher.Constraint("Parallel", 14, 16))
sketch1.addConstraint(Sketcher.Constraint("Parallel", 18, 20))
sketch1.addConstraint(Sketcher.Constraint("Parallel", 22, 24))
sketch1.addConstraint(Sketcher.Constraint("Parallel", 26, 28))
sketch1.addConstraint(Sketcher.Constraint("Parallel", 30, 32))
sketch1.addConstraint(Sketcher.Constraint("Parallel", 0, 34))
sketch1.addConstraint(Sketcher.Constraint("Parallel", 34, 36))
sketch1.addConstraint(Sketcher.Constraint("Parallel", 8, 42))
sketch1.addConstraint(Sketcher.Constraint("Parallel", 42, 44))
sketch1.addConstraint(Sketcher.Constraint("Parallel", 12, 46))
sketch1.addConstraint(Sketcher.Constraint("Parallel", 46, 48))
sketch1.addConstraint(Sketcher.Constraint("Parallel", 16, 50))
sketch1.addConstraint(Sketcher.Constraint("Parallel", 50, 52))
sketch1.addConstraint(Sketcher.Constraint("Parallel", 20, 54))
sketch1.addConstraint(Sketcher.Constraint("Parallel", 54, 56))
sketch1.addConstraint(Sketcher.Constraint("Parallel", 24, 58))
sketch1.addConstraint(Sketcher.Constraint("Parallel", 58, 60))
sketch1.addConstraint(Sketcher.Constraint("Parallel", 28, 62))
sketch1.addConstraint(Sketcher.Constraint("Parallel", 62, 64))
sketch1.addConstraint(Sketcher.Constraint("Parallel", 32, 66))
sketch1.addConstraint(Sketcher.Constraint("Parallel", 66, 68))
sketch1.addConstraint(Sketcher.Constraint("Parallel", 36, 70))
sketch1.addConstraint(Sketcher.Constraint("Horizontal", 19, 3, 23, 3))
sketch1.addConstraint(Sketcher.Constraint("Horizontal", 17, 3, 25, 3))
sketch1.addConstraint(Sketcher.Constraint("Horizontal", 15, 3, 27, 3))
sketch1.addConstraint(Sketcher.Constraint("Horizontal", 13, 3, 29, 3))
sketch1.addConstraint(Sketcher.Constraint("Horizontal", 11, 3, 31, 3))
sketch1.addConstraint(Sketcher.Constraint("Horizontal", 9, 3, 33, 3))
sketch1.addConstraint(Sketcher.Constraint("Horizontal", 7, 3, 35, 3))
sketch1.addConstraint(Sketcher.Constraint("Horizontal", 5, 3, 37, 3))
sketch1.addConstraint(Sketcher.Constraint("Horizontal", 55, 3, 59, 3))
sketch1.addConstraint(Sketcher.Constraint("Horizontal", 53, 3, 61, 3))
sketch1.addConstraint(Sketcher.Constraint("Horizontal", 51, 3, 63, 3))
sketch1.addConstraint(Sketcher.Constraint("Horizontal", 49, 3, 65, 3))
sketch1.addConstraint(Sketcher.Constraint("Horizontal", 47, 3, 67, 3))
sketch1.addConstraint(Sketcher.Constraint("Horizontal", 45, 3, 69, 3))
sketch1.addConstraint(Sketcher.Constraint("Horizontal", 43, 3, 71, 3))
sketch1.addConstraint(Sketcher.Constraint("Horizontal", 39, 3, 72, 3))
sketch1.addConstraint(Sketcher.Constraint("Horizontal", 20, 2, 21, 1))
sketch1.addConstraint(Sketcher.Constraint("Horizontal", 16, 2, 25, 1))
sketch1.addConstraint(Sketcher.Constraint("Horizontal", 12, 2, 29, 1))
sketch1.addConstraint(Sketcher.Constraint("Horizontal", 8, 2, 33, 1))
sketch1.addConstraint(Sketcher.Constraint("Vertical", 1, 3, 5, 3))
sketch1.addConstraint(Sketcher.Constraint("Vertical", 37, 3, 41, 3))
sketch1.addConstraint(Sketcher.Constraint("Vertical", 35, 3, 43, 3))
sketch1.addConstraint(Sketcher.Constraint("Vertical", 33, 3, 45, 3))
sketch1.addConstraint(Sketcher.Constraint("Vertical", 31, 3, 47, 3))
sketch1.addConstraint(Sketcher.Constraint("Vertical", 29, 3, 49, 3))
sketch1.addConstraint(Sketcher.Constraint("Vertical", 27, 3, 51, 3))
sketch1.addConstraint(Sketcher.Constraint("Vertical", 25, 3, 53, 3))
sketch1.addConstraint(Sketcher.Constraint("Vertical", 23, 3, 55, 3))
sketch1.addConstraint(Sketcher.Constraint("Vertical", 57, 3, 72, 3))
sketch1.addConstraint(Sketcher.Constraint("Equal", 4, 38))
sketch1.addConstraint(Sketcher.Constraint("Equal", 6, 8))
sketch1.addConstraint(Sketcher.Constraint("Equal", 8, 10))
sketch1.addConstraint(Sketcher.Constraint("Equal", 10, 12))
sketch1.addConstraint(Sketcher.Constraint("Equal", 12, 14))
sketch1.addConstraint(Sketcher.Constraint("Equal", 14, 16))
sketch1.addConstraint(Sketcher.Constraint("Equal", 16, 18))
sketch1.addConstraint(Sketcher.Constraint("Equal", 18, 20))
sketch1.addConstraint(Sketcher.Constraint("Angle", 0, Q("160 deg")))
sketch1.addConstraint(Sketcher.Constraint("Angle", 10, Q("40 deg")))
sketch1.addConstraint(Sketcher.Constraint("Angle", 14, Q("60 deg")))
sketch1.addConstraint(Sketcher.Constraint("Angle", 18, Q("80 deg")))
sketch1.addConstraint(Sketcher.Constraint("Radius", 3, Q("0.0625 in")))
sketch1.addConstraint(Sketcher.Constraint("DistanceX", 2, 1, 2, 2, Q("0.25 in")))
sketch1.addConstraint(Sketcher.Constraint("Distance", 0, Q("0.25 in")))
sketch1.addConstraint(Sketcher.Constraint("Diameter", 72, Q("25.228919 mm")))
sketch1.addConstraint(Sketcher.Constraint("Radius", 1, Q("2.362856 mm")))
sketch1.addConstraint(Sketcher.Constraint("DistanceX", -1, 1, 19, 3, Q("18.0765 mm")))
sketch1.addConstraint(Sketcher.Constraint("DistanceY", -1, 1, 5, 1, Q("7.530402 mm")))
pad1 = doc.addObject("PartDesign::Pad", "Pad")
body.addObject(pad1)
pad1.Profile = sketch1
pad1.Length = Q("0.1875 in")

doc.recompute()
